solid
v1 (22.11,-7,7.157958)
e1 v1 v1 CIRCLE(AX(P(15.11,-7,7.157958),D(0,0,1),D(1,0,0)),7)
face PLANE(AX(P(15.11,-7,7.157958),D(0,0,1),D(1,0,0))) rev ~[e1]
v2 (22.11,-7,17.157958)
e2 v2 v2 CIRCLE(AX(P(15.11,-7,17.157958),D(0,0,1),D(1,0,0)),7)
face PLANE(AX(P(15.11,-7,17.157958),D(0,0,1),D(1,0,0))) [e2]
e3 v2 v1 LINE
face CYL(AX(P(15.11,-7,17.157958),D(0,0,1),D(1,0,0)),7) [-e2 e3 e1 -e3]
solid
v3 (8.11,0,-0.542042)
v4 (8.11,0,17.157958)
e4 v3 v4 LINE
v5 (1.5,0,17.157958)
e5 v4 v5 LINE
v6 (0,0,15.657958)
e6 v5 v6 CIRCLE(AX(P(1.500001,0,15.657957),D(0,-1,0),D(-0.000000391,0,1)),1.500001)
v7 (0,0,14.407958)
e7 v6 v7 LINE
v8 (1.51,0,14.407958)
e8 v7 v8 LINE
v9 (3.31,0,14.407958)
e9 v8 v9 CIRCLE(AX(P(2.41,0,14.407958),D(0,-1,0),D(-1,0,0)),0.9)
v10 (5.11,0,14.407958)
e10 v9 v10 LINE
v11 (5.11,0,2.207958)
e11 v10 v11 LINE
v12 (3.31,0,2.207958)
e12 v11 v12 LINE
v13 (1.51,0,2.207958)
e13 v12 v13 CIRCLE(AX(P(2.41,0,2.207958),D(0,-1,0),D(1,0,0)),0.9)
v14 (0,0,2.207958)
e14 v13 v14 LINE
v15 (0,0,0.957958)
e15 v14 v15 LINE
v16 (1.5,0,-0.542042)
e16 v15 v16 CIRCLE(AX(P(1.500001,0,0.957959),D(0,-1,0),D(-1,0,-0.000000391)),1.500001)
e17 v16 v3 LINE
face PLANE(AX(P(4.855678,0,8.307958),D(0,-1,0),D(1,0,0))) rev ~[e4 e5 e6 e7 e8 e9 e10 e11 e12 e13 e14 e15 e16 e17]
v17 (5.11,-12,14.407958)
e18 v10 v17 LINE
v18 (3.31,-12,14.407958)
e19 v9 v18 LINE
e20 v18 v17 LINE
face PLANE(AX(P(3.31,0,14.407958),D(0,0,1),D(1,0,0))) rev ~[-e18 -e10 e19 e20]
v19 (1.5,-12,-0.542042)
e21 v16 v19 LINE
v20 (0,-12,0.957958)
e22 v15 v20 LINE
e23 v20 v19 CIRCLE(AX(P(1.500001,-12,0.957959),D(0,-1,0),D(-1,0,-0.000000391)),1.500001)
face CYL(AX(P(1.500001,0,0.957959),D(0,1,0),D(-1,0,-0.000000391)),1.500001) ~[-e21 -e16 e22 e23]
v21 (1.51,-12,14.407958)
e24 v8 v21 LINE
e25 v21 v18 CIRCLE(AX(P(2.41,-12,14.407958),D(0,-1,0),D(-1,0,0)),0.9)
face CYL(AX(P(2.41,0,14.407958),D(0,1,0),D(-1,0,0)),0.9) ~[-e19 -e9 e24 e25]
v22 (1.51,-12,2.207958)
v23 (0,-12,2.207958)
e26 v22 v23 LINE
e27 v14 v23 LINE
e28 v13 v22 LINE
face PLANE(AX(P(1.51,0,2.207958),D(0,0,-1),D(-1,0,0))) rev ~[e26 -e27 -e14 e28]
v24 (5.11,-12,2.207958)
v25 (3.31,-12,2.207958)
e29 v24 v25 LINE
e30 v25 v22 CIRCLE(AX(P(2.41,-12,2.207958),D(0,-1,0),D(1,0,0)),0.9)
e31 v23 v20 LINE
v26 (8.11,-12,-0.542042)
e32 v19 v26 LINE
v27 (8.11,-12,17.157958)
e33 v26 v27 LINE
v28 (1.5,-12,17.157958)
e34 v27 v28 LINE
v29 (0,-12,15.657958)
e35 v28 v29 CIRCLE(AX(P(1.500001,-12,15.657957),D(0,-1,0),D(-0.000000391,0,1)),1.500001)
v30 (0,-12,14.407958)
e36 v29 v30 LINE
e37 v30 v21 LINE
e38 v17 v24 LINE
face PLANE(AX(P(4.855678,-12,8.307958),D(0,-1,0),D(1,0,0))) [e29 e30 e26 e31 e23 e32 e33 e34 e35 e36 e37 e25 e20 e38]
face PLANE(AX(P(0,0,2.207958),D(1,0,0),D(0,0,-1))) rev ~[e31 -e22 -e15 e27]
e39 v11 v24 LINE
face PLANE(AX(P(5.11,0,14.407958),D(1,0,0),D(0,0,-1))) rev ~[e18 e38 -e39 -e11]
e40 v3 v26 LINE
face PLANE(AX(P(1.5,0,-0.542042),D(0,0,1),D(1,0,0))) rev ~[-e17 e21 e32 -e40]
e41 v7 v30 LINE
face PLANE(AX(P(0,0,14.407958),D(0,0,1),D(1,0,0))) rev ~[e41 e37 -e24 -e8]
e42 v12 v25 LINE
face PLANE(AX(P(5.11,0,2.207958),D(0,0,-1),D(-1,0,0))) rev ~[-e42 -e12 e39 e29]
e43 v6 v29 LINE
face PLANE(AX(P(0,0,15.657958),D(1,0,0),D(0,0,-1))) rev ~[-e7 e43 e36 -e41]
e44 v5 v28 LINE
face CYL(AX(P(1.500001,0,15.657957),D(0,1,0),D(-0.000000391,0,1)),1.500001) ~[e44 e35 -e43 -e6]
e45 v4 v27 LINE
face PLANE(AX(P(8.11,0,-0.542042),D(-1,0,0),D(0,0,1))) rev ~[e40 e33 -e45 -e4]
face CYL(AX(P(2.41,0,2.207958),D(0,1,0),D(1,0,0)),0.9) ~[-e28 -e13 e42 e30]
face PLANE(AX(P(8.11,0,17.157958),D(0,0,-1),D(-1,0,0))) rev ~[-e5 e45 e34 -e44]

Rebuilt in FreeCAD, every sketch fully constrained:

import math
import FreeCAD as App
import Part
import Sketcher

V = App.Vector
Q = App.Units.Quantity

doc = App.newDocument("Part")
params = doc.addObject("Spreadsheet::Sheet", "Params")
for row, (alias, value) in enumerate([
    ("sketch1_radius", "1.500001 mm"),
    ("sketch1_radius2", "0.9 mm"),
    ("sketch1_width", "1.8 mm"),
    ("sketch1_height", "17.7 mm"),
    ("sketch1_height2", "12.2 mm"),
    ("pad1_length", "12 mm"),
    ("sketch2_diameter", "14 mm"),
    ("pad2_length", "10 mm"),
], start=1):
    params.set(f"A{row}", alias)
    params.set(f"B{row}", "=" + value)
    params.setAlias(f"B{row}", alias)

body = doc.addObject("PartDesign::Body", "Body")

sketch1 = body.newObject("Sketcher::SketchObject", "Sketch")
sketch1.AttachmentSupport = (doc.getObject("XZ_Plane"), [""])
sketch1.MapMode = "FlatFace"
sketch1.addGeometry([
    Part.ArcOfCircle(Part.Circle(V(1.500001, 0.957959, 0), V(0, 0, 1), 1.500001), math.radians(-179.999978), math.radians(-90.000022)),
    Part.LineSegment(V(1.5, -0.542042, 0), V(8.11, -0.542042, 0)),
    Part.LineSegment(V(8.11, -0.542042, 0), V(8.11, 17.157958, 0)),
    Part.LineSegment(V(8.11, 17.157958, 0), V(1.5, 17.157958, 0)),
    Part.ArcOfCircle(Part.Circle(V(1.500001, 15.657957, 0), V(0, 0, 1), 1.500001), math.radians(90.000022), math.radians(179.999978)),
    Part.LineSegment(V(0, 15.657958, 0), V(0, 14.407958, 0)),
    Part.LineSegment(V(0, 14.407958, 0), V(1.51, 14.407958, 0)),
    Part.ArcOfCircle(Part.Circle(V(2.41, 14.407958, 0), V(0, 0, 1), 0.9), math.radians(180), math.radians(360)),
    Part.LineSegment(V(3.31, 14.407958, 0), V(5.11, 14.407958, 0)),
    Part.LineSegment(V(5.11, 14.407958, 0), V(5.11, 2.207958, 0)),
    Part.LineSegment(V(5.11, 2.207958, 0), V(3.31, 2.207958, 0)),
    Part.ArcOfCircle(Part.Circle(V(2.41, 2.207958, 0), V(0, 0, 1), 0.9), math.radians(0), math.radians(180)),
    Part.LineSegment(V(1.51, 2.207958, 0), V(0, 2.207958, 0)),
    Part.LineSegment(V(0, 2.207958, 0), V(0, 0.957958, 0)),
], False)
sketch1.addConstraint([
    Sketcher.Constraint("Tangent", 0, 2, 1, 1),
    Sketcher.Constraint("Coincident", 1, 2, 2, 1),
    Sketcher.Constraint("Coincident", 2, 2, 3, 1),
    Sketcher.Constraint("Tangent", 3, 2, 4, 1),
    Sketcher.Constraint("Tangent", 4, 2, 5, 1),
    Sketcher.Constraint("Coincident", 5, 2, 6, 1),
    Sketcher.Constraint("Coincident", 6, 2, 7, 1),
    Sketcher.Constraint("Coincident", 7, 2, 8, 1),
    Sketcher.Constraint("Coincident", 8, 2, 9, 1),
    Sketcher.Constraint("Coincident", 9, 2, 10, 1),
    Sketcher.Constraint("Coincident", 10, 2, 11, 1),
    Sketcher.Constraint("Coincident", 11, 2, 12, 1),
    Sketcher.Constraint("Coincident", 12, 2, 13, 1),
    Sketcher.Constraint("Tangent", 13, 2, 0, 1),
    Sketcher.Constraint("Horizontal", 1),
    Sketcher.Constraint("Vertical", 2),
    Sketcher.Constraint("Horizontal", 3),
    Sketcher.Constraint("Vertical", 5),
    Sketcher.Constraint("Horizontal", 6),
    Sketcher.Constraint("Horizontal", 8),
    Sketcher.Constraint("Vertical", 9),
    Sketcher.Constraint("Horizontal", 10),
    Sketcher.Constraint("Horizontal", 12),
    Sketcher.Constraint("Vertical", 13),
    Sketcher.Constraint("Equal", 0, 4),
    Sketcher.Constraint("Equal", 7, 11),
    Sketcher.Constraint("PointOnObject", 4, 2, -2),
    Sketcher.Constraint("PointOnObject", 12, 2, -2),
    Sketcher.Constraint("Horizontal", 7, 3, 5, 2),
    Sketcher.Constraint("Horizontal", 6, 2, 7, 2),
    Sketcher.Constraint("Horizontal", 11, 3, 9, 2),
    Sketcher.Constraint("Horizontal", 10, 2, 11, 2),
    Sketcher.Constraint("Vertical", 7, 3, 11, 3),
    Sketcher.Constraint("Equal", 5, 13),
    Sketcher.Constraint("Radius", 0, Q("1.500001 mm")),
    Sketcher.Constraint("Radius", 7, Q("0.9 mm")),
    Sketcher.Constraint("DistanceX", 8, 1, 8, 2, Q("1.8 mm")),
    Sketcher.Constraint("DistanceY", 2, 1, 2, 2, Q("17.7 mm")),
    Sketcher.Constraint("DistanceY", 9, 2, 9, 1, Q("12.2 mm")),
    Sketcher.Constraint("DistanceX", 8, 2, 2, 2, Q("3 mm")),
    Sketcher.Constraint("DistanceX", 1, 1, 1, 2, Q("6.61 mm")),
    Sketcher.Constraint("DistanceY", -1, 1, 0, 3, Q("0.957959 mm")),
])
sketch1.setExpression("Constraints[34]", "Params.sketch1_radius")
sketch1.setExpression("Constraints[35]", "Params.sketch1_radius2")
sketch1.setExpression("Constraints[36]", "Params.sketch1_width")
sketch1.setExpression("Constraints[37]", "Params.sketch1_height")
sketch1.setExpression("Constraints[38]", "Params.sketch1_height2")
pad1 = body.newObject("PartDesign::Pad", "Pad")
pad1.Profile = sketch1
pad1.setExpression("Length", "Params.pad1_length")
body2 = doc.addObject("PartDesign::Body", "Body001")

sketch2 = body2.newObject("Sketcher::SketchObject", "Sketch001")
sketch2.AttachmentSupport = (doc.getObject("XY_Plane001"), [""])
sketch2.MapMode = "FlatFace"
sketch2.AttachmentOffset = App.Placement(V(0, 0, 17.157958), App.Rotation())
sketch2.addGeometry(Part.Circle(V(15.11, -7, 0), V(0, 0, 1), 7), False)
sketch2.addConstraint([
    Sketcher.Constraint("Diameter", 0, Q("14 mm")),
    Sketcher.Constraint("DistanceY", 0, 3, -1, 1, Q("7 mm")),
    Sketcher.Constraint("DistanceX", -1, 1, 0, 3, Q("15.11 mm")),
])
sketch2.setExpression("Constraints[0]", "Params.sketch2_diameter")
pad2 = body2.newObject("PartDesign::Pad", "Pad001")
pad2.Profile = sketch2
pad2.setExpression("Length", "Params.pad2_length")
pad2.Reversed = True

doc.recompute()
